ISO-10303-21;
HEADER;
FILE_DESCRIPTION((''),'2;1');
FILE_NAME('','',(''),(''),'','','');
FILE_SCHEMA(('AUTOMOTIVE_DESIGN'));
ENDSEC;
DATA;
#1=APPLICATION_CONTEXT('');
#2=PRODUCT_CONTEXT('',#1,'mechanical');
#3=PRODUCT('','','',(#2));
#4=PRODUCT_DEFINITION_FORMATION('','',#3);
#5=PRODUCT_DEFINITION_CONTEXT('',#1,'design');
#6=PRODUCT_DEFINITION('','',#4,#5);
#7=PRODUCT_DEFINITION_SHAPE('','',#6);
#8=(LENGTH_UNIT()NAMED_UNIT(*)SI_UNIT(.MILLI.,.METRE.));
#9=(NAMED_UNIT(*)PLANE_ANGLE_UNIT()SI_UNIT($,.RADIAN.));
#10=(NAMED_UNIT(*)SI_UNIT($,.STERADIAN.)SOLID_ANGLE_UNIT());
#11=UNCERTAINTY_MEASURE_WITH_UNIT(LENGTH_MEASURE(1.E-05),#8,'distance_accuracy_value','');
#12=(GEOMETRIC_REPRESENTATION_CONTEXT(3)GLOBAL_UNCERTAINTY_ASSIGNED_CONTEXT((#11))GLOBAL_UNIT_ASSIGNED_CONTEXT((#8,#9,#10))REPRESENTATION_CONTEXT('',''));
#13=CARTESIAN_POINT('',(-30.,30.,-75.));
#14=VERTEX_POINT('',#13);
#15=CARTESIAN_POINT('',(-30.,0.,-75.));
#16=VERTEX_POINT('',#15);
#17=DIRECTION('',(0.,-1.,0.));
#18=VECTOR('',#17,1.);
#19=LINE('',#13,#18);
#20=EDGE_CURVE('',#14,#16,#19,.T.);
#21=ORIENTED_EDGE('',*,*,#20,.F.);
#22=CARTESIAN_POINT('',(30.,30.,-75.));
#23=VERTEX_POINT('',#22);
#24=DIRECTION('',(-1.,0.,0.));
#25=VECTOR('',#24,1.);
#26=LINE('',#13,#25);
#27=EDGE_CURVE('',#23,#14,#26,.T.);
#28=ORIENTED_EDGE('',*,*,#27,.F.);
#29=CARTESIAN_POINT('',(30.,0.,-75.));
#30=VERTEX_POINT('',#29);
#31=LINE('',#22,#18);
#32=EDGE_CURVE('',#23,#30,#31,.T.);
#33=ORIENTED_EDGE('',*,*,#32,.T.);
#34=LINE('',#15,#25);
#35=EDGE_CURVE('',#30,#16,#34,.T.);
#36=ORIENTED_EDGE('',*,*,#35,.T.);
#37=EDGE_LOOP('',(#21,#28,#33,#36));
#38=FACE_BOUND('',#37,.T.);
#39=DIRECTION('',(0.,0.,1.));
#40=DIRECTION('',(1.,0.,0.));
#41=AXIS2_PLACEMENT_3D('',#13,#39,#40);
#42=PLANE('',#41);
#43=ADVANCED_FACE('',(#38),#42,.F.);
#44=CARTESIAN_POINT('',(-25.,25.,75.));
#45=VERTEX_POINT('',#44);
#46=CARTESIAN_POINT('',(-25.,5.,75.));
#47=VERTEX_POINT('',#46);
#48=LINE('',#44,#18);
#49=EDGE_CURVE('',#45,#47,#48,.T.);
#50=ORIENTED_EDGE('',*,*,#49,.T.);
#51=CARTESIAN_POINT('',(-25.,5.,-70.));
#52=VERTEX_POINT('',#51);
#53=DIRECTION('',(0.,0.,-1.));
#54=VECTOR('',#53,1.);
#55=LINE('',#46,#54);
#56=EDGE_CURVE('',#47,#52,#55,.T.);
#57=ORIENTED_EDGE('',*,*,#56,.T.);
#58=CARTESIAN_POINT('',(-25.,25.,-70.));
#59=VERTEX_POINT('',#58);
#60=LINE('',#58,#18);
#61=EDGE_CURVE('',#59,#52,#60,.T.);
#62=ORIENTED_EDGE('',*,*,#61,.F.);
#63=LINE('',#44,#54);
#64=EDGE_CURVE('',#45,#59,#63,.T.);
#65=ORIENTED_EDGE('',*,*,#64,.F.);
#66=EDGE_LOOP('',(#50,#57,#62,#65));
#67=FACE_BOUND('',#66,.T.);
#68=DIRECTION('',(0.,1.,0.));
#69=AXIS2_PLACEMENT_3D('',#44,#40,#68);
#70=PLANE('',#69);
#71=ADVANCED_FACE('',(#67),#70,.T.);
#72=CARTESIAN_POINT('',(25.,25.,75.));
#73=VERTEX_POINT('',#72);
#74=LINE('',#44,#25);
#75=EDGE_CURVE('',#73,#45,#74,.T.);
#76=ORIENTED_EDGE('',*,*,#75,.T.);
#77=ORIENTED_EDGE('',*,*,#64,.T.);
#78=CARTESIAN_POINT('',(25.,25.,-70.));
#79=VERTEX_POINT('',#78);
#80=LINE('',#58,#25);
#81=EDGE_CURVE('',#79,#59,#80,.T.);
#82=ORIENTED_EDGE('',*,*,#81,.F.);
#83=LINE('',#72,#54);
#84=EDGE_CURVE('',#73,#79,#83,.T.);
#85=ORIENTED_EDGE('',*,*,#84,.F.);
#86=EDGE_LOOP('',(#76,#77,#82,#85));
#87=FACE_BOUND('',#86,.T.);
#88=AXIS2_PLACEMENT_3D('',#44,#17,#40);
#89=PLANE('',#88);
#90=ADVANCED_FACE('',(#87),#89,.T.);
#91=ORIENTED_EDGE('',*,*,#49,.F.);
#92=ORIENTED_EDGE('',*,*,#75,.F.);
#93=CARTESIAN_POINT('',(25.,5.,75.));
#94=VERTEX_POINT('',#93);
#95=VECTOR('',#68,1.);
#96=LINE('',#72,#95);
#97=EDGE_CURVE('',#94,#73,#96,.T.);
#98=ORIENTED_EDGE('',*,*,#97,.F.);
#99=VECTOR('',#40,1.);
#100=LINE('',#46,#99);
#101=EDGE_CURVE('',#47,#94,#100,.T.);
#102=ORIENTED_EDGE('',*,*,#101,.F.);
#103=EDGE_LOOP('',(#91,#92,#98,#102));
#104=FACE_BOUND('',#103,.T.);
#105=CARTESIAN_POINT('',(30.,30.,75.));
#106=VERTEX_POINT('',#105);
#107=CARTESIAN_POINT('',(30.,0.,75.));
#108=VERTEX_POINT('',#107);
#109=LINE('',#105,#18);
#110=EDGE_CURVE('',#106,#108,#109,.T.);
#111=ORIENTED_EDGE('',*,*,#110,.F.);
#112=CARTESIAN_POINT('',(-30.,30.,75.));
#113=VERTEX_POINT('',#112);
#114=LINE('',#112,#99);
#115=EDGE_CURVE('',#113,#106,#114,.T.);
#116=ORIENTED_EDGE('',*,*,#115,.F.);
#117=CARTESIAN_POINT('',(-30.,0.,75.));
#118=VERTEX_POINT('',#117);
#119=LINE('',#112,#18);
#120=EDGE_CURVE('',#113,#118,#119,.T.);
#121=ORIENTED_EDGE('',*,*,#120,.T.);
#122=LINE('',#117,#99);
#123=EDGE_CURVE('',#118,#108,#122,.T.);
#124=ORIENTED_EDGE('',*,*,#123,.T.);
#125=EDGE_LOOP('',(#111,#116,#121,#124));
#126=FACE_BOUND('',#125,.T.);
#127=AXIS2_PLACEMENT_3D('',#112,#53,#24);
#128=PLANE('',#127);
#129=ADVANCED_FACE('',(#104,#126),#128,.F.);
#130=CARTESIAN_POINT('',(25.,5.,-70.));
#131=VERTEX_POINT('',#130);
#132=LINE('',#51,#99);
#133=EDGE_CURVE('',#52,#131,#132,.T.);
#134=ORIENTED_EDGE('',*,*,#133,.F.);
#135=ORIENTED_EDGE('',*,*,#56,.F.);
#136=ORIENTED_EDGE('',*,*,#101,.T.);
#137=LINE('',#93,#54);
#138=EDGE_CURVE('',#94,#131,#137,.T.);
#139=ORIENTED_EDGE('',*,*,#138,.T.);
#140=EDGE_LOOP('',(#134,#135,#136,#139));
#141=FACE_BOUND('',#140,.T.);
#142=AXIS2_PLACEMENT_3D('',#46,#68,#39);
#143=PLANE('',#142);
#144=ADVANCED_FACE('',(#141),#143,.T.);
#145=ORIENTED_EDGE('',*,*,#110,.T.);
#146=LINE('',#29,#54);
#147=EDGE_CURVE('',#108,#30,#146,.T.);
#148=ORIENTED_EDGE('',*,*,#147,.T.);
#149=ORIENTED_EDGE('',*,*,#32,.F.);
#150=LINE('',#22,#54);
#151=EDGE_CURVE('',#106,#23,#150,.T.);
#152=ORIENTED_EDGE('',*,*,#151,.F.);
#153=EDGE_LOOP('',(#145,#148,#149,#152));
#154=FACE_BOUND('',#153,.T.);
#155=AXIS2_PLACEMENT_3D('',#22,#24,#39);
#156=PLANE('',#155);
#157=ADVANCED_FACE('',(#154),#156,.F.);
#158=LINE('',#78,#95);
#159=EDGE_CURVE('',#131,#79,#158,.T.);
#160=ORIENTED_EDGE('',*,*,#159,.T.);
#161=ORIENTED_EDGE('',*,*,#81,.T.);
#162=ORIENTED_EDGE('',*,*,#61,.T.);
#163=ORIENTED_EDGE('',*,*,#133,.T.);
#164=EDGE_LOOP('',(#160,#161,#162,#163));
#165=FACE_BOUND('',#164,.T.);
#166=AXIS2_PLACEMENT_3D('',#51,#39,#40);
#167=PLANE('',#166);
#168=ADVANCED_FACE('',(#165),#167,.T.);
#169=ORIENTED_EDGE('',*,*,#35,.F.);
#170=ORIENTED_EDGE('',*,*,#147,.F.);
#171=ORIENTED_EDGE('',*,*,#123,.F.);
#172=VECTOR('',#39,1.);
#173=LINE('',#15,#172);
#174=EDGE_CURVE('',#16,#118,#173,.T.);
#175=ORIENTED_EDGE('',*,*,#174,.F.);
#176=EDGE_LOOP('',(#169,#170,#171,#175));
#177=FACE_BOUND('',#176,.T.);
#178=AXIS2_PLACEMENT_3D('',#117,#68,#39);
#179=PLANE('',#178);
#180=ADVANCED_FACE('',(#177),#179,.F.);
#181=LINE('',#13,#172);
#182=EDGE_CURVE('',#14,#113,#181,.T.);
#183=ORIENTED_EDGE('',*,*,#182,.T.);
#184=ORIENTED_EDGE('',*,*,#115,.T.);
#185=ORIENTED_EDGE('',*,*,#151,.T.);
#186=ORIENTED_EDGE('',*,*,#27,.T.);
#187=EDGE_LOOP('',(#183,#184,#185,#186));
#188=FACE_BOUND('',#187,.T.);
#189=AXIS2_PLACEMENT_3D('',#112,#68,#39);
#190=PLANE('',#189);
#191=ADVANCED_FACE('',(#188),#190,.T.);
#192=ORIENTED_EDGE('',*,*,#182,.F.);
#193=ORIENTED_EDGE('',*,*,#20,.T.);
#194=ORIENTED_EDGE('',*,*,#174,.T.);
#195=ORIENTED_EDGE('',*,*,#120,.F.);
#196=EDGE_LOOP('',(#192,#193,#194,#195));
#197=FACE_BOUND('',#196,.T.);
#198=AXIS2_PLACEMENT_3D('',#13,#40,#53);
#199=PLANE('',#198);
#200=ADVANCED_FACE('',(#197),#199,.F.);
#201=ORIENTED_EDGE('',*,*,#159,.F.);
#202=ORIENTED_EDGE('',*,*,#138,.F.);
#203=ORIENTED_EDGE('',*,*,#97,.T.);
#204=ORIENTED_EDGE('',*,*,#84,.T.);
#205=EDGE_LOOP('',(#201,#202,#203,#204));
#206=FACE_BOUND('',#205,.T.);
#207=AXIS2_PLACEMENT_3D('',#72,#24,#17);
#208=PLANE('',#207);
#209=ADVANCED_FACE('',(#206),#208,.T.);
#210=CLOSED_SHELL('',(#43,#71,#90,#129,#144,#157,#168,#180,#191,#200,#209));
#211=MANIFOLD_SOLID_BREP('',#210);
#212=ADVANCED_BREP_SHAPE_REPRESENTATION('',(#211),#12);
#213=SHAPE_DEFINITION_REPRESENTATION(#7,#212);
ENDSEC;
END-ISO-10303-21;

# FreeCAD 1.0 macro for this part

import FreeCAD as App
import Part
import Sketcher
from FreeCAD import Vector


def add_polygon(sketch, points):
    """Adds a closed chain of lines whose ends are joined by coincident constraints."""
    first, n = sketch.GeometryCount, len(points)
    for a, b in zip(points, points[1:] + points[:1]):
        sketch.addGeometry(Part.LineSegment(App.Vector(*a, 0), App.Vector(*b, 0)), False)
    for i in range(n):
        sketch.addConstraint(Sketcher.Constraint("Coincident", first + i, 2, first + (i + 1) % n, 1))

doc = App.newDocument("Part")
params = doc.addObject("Spreadsheet::Sheet", "Params")
for row, (alias, value) in enumerate([
    ("sketch1_width", "60 mm"),
    ("sketch1_height", "150 mm"),
    ("pad1_length", "30 mm"),
    ("sketch2_width", "50 mm"),
    ("sketch2_height", "20 mm"),
    ("pocket1_length", "75 mm"),
    ("pocket1_length2", "70 mm"),
], start=1):
    params.set(f"A{row}", alias)
    params.set(f"B{row}", "=" + value)
    params.setAlias(f"B{row}", alias)

body = doc.addObject("PartDesign::Body", "Body")

sketch1 = body.newObject("Sketcher::SketchObject", "Sketch")
sketch1.AttachmentSupport = (doc.getObject("XZ_Plane"), [""])
sketch1.MapMode = "FlatFace"
add_polygon(sketch1, [(-30, -75), (-30, 75), (30, 75), (30, -75)])
sketch1.addConstraint([
    Sketcher.Constraint("Vertical", 0),
    Sketcher.Constraint("Horizontal", 1),
    Sketcher.Constraint("Vertical", 2),
    Sketcher.Constraint("Horizontal", 3),
    Sketcher.Constraint("Symmetric", 0, 2, 2, 2, -1, 1),
    Sketcher.Constraint("DistanceX", 1, 1, 1, 2, 60.0),
    Sketcher.Constraint("DistanceY", 0, 1, 0, 2, 150.0),
])
sketch1.setExpression("Constraints[9]", "Params.sketch1_width")
sketch1.setExpression("Constraints[10]", "Params.sketch1_height")
pad1 = body.newObject("PartDesign::Pad", "Pad")
pad1.Profile = sketch1
pad1.setExpression("Length", "Params.pad1_length")
pad1.Reversed = True

sketch2 = body.newObject("Sketcher::SketchObject", "Sketch001")
sketch2.AttachmentSupport = (doc.getObject("XY_Plane"), [""])
sketch2.MapMode = "FlatFace"
add_polygon(sketch2, [(-25, 25), (-25, 5), (25, 5), (25, 25)])
sketch2.addConstraint([
    Sketcher.Constraint("Vertical", 0),
    Sketcher.Constraint("Horizontal", 1),
    Sketcher.Constraint("Vertical", 2),
    Sketcher.Constraint("Horizontal", 3),
    Sketcher.Constraint("DistanceX", 1, 1, 1, 2, 50.0),
    Sketcher.Constraint("DistanceY", 0, 2, 0, 1, 20.0),
    Sketcher.Constraint("DistanceX", 0, 2, -1, 1, 25.0),
    Sketcher.Constraint("DistanceY", -1, 1, 0, 2, 5.0),
])
sketch2.setExpression("Constraints[8]", "Params.sketch2_width")
sketch2.setExpression("Constraints[9]", "Params.sketch2_height")
pocket1 = body.newObject("PartDesign::Pocket", "Pocket")
pocket1.Profile = sketch2
pocket1.Type = "TwoLengths"
pocket1.setExpression("Length", "Params.pocket1_length")
pocket1.setExpression("Length2", "Params.pocket1_length2")
pocket1.Reversed = True

doc.recompute()
